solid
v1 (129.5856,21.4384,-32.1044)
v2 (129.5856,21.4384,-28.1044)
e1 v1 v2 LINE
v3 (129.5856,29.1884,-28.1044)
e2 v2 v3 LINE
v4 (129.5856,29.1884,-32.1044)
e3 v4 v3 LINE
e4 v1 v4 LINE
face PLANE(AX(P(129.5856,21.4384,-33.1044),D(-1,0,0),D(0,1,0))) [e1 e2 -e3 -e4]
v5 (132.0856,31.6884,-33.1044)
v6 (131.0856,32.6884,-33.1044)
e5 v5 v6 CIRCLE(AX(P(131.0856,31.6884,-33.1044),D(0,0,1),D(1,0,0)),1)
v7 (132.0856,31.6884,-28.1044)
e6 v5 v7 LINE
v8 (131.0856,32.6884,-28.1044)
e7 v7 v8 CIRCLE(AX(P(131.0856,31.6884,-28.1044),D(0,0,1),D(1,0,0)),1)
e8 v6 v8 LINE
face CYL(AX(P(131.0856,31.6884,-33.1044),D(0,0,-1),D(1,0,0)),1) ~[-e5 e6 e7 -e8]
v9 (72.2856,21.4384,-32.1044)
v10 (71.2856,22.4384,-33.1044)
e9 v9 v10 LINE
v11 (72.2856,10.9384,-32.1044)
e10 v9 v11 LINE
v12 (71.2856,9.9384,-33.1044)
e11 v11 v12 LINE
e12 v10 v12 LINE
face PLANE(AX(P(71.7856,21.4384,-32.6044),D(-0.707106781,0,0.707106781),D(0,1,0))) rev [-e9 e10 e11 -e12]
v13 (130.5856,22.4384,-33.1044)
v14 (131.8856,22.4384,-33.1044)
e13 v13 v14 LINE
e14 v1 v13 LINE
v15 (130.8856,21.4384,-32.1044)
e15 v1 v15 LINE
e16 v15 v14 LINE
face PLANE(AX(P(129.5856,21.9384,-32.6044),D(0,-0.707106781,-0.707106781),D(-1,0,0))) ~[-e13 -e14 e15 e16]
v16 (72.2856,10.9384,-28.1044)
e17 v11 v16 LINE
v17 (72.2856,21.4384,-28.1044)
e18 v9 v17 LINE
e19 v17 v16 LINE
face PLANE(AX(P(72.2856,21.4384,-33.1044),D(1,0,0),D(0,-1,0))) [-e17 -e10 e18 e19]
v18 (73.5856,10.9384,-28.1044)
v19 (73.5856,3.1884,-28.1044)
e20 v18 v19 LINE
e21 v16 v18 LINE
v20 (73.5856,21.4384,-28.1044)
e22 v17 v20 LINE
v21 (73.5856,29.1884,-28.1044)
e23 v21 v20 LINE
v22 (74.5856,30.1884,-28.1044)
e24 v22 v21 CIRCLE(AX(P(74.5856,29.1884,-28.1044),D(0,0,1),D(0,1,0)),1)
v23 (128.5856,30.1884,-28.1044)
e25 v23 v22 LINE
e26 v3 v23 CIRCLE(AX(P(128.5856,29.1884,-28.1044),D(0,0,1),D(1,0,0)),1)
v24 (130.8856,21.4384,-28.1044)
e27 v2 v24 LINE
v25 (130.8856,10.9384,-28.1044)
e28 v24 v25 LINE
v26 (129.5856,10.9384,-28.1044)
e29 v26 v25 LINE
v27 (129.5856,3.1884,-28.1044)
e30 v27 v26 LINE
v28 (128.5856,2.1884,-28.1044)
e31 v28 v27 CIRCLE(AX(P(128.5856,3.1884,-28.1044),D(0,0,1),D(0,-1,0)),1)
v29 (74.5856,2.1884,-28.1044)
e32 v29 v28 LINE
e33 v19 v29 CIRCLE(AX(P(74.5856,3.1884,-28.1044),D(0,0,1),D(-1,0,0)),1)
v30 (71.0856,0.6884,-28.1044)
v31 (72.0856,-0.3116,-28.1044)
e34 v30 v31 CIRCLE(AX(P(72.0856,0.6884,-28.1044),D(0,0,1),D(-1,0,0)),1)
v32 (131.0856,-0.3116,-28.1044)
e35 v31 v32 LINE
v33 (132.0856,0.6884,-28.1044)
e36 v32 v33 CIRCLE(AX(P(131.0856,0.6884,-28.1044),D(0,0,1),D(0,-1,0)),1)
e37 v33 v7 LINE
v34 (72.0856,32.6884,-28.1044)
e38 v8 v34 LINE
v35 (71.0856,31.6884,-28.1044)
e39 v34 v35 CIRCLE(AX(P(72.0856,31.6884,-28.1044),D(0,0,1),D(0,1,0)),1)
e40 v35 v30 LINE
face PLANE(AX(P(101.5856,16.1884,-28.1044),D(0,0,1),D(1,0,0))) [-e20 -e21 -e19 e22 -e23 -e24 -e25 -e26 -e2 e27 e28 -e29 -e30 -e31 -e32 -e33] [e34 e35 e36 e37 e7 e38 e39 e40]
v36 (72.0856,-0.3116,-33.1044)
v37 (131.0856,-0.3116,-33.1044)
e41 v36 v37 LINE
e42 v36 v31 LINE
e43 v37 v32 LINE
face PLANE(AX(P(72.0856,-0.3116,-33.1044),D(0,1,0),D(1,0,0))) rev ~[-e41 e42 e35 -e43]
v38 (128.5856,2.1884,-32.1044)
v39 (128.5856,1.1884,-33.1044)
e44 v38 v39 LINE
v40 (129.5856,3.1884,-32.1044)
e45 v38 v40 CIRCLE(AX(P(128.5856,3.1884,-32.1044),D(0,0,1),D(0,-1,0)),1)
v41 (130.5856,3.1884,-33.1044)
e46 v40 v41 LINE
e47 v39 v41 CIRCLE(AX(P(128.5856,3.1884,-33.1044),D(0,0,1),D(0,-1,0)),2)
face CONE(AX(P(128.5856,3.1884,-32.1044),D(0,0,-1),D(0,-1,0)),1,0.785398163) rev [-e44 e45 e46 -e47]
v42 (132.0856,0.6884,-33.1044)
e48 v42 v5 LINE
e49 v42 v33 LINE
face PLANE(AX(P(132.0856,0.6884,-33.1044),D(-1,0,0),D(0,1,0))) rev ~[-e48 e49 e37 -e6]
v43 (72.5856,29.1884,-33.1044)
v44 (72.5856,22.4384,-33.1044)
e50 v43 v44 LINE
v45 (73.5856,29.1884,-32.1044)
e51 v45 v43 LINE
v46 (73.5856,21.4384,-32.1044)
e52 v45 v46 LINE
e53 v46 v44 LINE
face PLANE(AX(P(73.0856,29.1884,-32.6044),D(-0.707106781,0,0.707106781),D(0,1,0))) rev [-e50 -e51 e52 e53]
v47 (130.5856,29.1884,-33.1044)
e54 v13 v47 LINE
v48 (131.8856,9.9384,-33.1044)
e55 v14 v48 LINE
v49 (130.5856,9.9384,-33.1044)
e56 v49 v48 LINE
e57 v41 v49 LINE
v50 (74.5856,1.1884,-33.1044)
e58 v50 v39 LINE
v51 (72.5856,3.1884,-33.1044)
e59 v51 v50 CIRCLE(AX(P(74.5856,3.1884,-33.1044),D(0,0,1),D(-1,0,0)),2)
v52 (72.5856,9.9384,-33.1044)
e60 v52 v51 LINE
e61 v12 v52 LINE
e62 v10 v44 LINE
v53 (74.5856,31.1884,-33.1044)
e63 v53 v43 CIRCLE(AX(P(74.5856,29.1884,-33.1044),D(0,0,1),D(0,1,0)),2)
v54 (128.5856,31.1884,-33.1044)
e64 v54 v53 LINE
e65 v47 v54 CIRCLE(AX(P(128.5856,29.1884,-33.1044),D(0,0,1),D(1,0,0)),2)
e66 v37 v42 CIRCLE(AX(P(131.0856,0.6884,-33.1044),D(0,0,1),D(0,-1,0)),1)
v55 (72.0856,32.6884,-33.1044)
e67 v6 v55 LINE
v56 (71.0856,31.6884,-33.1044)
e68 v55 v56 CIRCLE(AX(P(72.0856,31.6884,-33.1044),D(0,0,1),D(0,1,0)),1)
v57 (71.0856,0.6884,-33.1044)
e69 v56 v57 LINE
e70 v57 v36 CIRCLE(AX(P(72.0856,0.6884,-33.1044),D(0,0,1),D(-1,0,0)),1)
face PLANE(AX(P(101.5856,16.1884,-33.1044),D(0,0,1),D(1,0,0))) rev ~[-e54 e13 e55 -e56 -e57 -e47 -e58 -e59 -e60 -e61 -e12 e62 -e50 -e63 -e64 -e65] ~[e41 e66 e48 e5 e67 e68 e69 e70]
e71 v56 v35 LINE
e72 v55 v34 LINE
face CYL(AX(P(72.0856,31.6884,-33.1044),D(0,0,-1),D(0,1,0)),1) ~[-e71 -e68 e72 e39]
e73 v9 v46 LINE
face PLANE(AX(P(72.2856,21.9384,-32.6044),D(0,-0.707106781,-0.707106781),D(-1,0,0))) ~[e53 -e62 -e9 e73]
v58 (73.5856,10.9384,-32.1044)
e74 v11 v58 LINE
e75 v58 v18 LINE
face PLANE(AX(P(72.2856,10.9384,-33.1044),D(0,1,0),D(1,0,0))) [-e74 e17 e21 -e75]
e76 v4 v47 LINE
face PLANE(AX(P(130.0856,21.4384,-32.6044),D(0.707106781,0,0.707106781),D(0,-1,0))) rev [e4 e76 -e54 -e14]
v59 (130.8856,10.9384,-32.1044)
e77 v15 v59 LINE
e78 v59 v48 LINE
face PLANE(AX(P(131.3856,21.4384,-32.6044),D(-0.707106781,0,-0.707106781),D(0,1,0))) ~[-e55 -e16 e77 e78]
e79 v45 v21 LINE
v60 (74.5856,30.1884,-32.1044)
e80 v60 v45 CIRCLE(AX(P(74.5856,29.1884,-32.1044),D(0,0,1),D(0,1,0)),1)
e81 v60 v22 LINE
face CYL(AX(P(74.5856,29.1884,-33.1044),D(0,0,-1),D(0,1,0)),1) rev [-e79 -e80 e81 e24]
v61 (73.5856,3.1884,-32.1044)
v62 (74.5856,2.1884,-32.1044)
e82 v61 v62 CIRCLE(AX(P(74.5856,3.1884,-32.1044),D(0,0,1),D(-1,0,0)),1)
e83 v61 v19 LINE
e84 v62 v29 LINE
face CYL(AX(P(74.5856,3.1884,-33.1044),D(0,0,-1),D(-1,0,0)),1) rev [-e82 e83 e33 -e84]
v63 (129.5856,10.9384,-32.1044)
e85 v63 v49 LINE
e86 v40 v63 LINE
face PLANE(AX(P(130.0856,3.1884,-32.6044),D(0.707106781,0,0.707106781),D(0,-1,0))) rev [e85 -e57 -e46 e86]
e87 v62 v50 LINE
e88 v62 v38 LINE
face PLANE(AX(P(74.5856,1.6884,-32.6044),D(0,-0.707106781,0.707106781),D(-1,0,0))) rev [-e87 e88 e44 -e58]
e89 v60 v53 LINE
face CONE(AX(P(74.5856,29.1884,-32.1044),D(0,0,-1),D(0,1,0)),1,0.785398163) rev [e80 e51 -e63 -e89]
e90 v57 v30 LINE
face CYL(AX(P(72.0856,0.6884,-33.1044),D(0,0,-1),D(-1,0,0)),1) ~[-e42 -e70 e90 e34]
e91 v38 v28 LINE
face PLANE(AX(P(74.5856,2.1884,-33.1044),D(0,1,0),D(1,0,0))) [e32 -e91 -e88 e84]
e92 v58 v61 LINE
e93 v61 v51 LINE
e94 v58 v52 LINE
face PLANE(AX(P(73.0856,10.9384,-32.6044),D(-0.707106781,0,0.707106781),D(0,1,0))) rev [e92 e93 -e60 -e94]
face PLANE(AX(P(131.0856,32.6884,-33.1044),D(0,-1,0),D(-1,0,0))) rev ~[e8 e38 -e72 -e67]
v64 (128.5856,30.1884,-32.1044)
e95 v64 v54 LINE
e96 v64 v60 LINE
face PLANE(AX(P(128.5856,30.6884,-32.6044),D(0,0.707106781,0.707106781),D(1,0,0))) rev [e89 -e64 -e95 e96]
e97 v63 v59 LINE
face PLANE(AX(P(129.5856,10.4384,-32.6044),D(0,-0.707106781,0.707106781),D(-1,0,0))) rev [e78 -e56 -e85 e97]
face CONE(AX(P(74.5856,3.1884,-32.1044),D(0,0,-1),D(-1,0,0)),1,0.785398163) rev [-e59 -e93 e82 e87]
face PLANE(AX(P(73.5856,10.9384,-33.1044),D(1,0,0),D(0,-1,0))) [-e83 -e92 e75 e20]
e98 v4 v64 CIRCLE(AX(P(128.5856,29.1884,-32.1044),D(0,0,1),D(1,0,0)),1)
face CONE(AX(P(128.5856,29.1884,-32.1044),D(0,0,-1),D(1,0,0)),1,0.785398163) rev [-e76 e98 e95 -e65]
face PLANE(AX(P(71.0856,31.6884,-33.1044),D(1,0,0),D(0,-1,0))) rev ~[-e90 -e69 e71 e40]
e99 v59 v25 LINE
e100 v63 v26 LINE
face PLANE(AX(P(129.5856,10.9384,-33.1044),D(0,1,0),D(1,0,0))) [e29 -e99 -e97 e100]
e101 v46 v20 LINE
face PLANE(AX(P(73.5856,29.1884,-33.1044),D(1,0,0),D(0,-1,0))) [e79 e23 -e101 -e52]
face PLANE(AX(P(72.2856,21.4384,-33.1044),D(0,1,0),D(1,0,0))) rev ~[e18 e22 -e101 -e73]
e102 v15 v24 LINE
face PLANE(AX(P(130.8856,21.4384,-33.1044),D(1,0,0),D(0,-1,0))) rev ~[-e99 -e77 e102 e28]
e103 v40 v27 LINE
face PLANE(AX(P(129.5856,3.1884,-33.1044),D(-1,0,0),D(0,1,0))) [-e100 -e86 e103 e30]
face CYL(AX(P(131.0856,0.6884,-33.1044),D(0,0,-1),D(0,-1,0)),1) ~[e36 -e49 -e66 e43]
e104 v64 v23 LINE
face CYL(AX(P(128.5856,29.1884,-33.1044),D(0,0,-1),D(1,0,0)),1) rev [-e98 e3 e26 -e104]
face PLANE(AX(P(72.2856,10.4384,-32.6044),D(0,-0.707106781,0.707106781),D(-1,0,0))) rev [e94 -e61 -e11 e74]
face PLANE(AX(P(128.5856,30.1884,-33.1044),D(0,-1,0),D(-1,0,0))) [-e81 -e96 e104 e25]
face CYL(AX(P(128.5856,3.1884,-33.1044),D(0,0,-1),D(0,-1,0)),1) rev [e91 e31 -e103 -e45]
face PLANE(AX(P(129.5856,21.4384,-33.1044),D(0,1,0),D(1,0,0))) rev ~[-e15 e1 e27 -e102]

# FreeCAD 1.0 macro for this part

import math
import FreeCAD as App
import Part
import Sketcher

V = App.Vector


def edges_at(feature, points):
    """Names of the edges that pass closest to the given points."""
    edges = feature.Shape.Edges
    near = lambda p: min(range(len(edges)), key=lambda i: edges[i].distToShape(Part.Vertex(*p))[0])
    return sorted({f"Edge{near(p) + 1}" for p in points})

doc = App.newDocument("Part")
body = doc.addObject("PartDesign::Body", "Body")

# Sketch on XY plane
sketch1 = body.newObject("Sketcher::SketchObject", "Sketch")
sketch1.AttachmentSupport = (doc.getObject("XY_Plane"), [""])
sketch1.MapMode = "FlatFace"
sketch1.AttachmentOffset = App.Placement(V(0, 0, -33.1044), App.Rotation())
sketch1.addGeometry(Part.ArcOfCircle(Part.Circle(V(131.1, 0.7, 0), V(0, 0, 1), 1), math.radians(-90), math.radians(0)), False)
sketch1.addGeometry(Part.LineSegment(V(132.1, 0.7, 0), V(132.1, 31.7, 0)), False)
sketch1.addGeometry(Part.ArcOfCircle(Part.Circle(V(131.1, 31.7, 0), V(0, 0, 1), 1), math.radians(0), math.radians(90)), False)
sketch1.addGeometry(Part.LineSegment(V(131.1, 32.7, 0), V(72.1, 32.7, 0)), False)
sketch1.addGeometry(Part.ArcOfCircle(Part.Circle(V(72.1, 31.7, 0), V(0, 0, 1), 1), math.radians(90), math.radians(180)), False)
sketch1.addGeometry(Part.LineSegment(V(71.1, 31.7, 0), V(71.1, 0.7, 0)), False)
sketch1.addGeometry(Part.ArcOfCircle(Part.Circle(V(72.1, 0.7, 0), V(0, 0, 1), 1), math.radians(180), math.radians(270)), False)
sketch1.addGeometry(Part.LineSegment(V(72.1, -0.3, 0), V(131.1, -0.3, 0)), False)
sketch1.addGeometry(Part.LineSegment(V(73.6, 21.4, 0), V(73.6, 29.2, 0)), False)
sketch1.addGeometry(Part.ArcOfCircle(Part.Circle(V(74.6, 29.2, 0), V(0, 0, 1), 1), math.radians(90), math.radians(180)), False)
sketch1.addGeometry(Part.LineSegment(V(74.6, 30.2, 0), V(128.6, 30.2, 0)), False)
sketch1.addGeometry(Part.ArcOfCircle(Part.Circle(V(128.6, 29.2, 0), V(0, 0, 1), 1), math.radians(0), math.radians(90)), False)
sketch1.addGeometry(Part.LineSegment(V(129.6, 29.2, 0), V(129.6, 21.4, 0)), False)
sketch1.addGeometry(Part.LineSegment(V(129.6, 21.4, 0), V(130.9, 21.4, 0)), False)
sketch1.addGeometry(Part.LineSegment(V(130.9, 21.4, 0), V(130.9, 10.9, 0)), False)
sketch1.addGeometry(Part.LineSegment(V(130.9, 10.9, 0), V(129.6, 10.9, 0)), False)
sketch1.addGeometry(Part.LineSegment(V(129.6, 10.9, 0), V(129.6, 3.2, 0)), False)
sketch1.addGeometry(Part.ArcOfCircle(Part.Circle(V(128.6, 3.2, 0), V(0, 0, 1), 1), math.radians(-90), math.radians(0)), False)
sketch1.addGeometry(Part.LineSegment(V(128.6, 2.2, 0), V(74.6, 2.2, 0)), False)
sketch1.addGeometry(Part.ArcOfCircle(Part.Circle(V(74.6, 3.2, 0), V(0, 0, 1), 1), math.radians(180), math.radians(270)), False)
sketch1.addGeometry(Part.LineSegment(V(73.6, 3.2, 0), V(73.6, 10.9, 0)), False)
sketch1.addGeometry(Part.LineSegment(V(73.6, 10.9, 0), V(72.3, 10.9, 0)), False)
sketch1.addGeometry(Part.LineSegment(V(72.3, 10.9, 0), V(72.3, 21.4, 0)), False)
sketch1.addGeometry(Part.LineSegment(V(72.3, 21.4, 0), V(73.6, 21.4, 0)), False)
sketch1.addConstraint(Sketcher.Constraint("Tangent", 0, 2, 1, 1))
sketch1.addConstraint(Sketcher.Constraint("Tangent", 1, 2, 2, 1))
sketch1.addConstraint(Sketcher.Constraint("Tangent", 2, 2, 3, 1))
sketch1.addConstraint(Sketcher.Constraint("Tangent", 3, 2, 4, 1))
sketch1.addConstraint(Sketcher.Constraint("Tangent", 4, 2, 5, 1))
sketch1.addConstraint(Sketcher.Constraint("Tangent", 5, 2, 6, 1))
sketch1.addConstraint(Sketcher.Constraint("Tangent", 6, 2, 7, 1))
sketch1.addConstraint(Sketcher.Constraint("Tangent", 7, 2, 0, 1))
sketch1.addConstraint(Sketcher.Constraint("Tangent", 8, 2, 9, 2))
sketch1.addConstraint(Sketcher.Constraint("Tangent", 9, 1, 10, 1))
sketch1.addConstraint(Sketcher.Constraint("Tangent", 10, 2, 11, 2))
sketch1.addConstraint(Sketcher.Constraint("Tangent", 11, 1, 12, 1))
sketch1.addConstraint(Sketcher.Constraint("Coincident", 12, 2, 13, 1))
sketch1.addConstraint(Sketcher.Constraint("Coincident", 13, 2, 14, 1))
sketch1.addConstraint(Sketcher.Constraint("Coincident", 14, 2, 15, 1))
sketch1.addConstraint(Sketcher.Constraint("Coincident", 15, 2, 16, 1))
sketch1.addConstraint(Sketcher.Constraint("Tangent", 16, 2, 17, 2))
sketch1.addConstraint(Sketcher.Constraint("Tangent", 17, 1, 18, 1))
sketch1.addConstraint(Sketcher.Constraint("Tangent", 18, 2, 19, 2))
sketch1.addConstraint(Sketcher.Constraint("Tangent", 19, 1, 20, 1))
sketch1.addConstraint(Sketcher.Constraint("Coincident", 20, 2, 21, 1))
sketch1.addConstraint(Sketcher.Constraint("Coincident", 21, 2, 22, 1))
sketch1.addConstraint(Sketcher.Constraint("Coincident", 22, 2, 23, 1))
sketch1.addConstraint(Sketcher.Constraint("Coincident", 23, 2, 8, 1))
sketch1.addConstraint(Sketcher.Constraint("Vertical", 1))
sketch1.addConstraint(Sketcher.Constraint("Horizontal", 3))
sketch1.addConstraint(Sketcher.Constraint("Vertical", 5))
sketch1.addConstraint(Sketcher.Constraint("Horizontal", 7))
sketch1.addConstraint(Sketcher.Constraint("Vertical", 8))
sketch1.addConstraint(Sketcher.Constraint("Horizontal", 10))
sketch1.addConstraint(Sketcher.Constraint("Vertical", 12))
sketch1.addConstraint(Sketcher.Constraint("Horizontal", 13))
sketch1.addConstraint(Sketcher.Constraint("Vertical", 14))
sketch1.addConstraint(Sketcher.Constraint("Horizontal", 15))
sketch1.addConstraint(Sketcher.Constraint("Vertical", 16))
sketch1.addConstraint(Sketcher.Constraint("Horizontal", 18))
sketch1.addConstraint(Sketcher.Constraint("Vertical", 20))
sketch1.addConstraint(Sketcher.Constraint("Horizontal", 21))
sketch1.addConstraint(Sketcher.Constraint("Vertical", 22))
sketch1.addConstraint(Sketcher.Constraint("Horizontal", 23))
sketch1.addConstraint(Sketcher.Constraint("Equal", 0, 2))
sketch1.addConstraint(Sketcher.Constraint("Equal", 2, 4))
sketch1.addConstraint(Sketcher.Constraint("Equal", 4, 6))
sketch1.addConstraint(Sketcher.Constraint("Equal", 6, 9))
sketch1.addConstraint(Sketcher.Constraint("Equal", 9, 11))
sketch1.addConstraint(Sketcher.Constraint("Equal", 11, 17))
sketch1.addConstraint(Sketcher.Constraint("Equal", 17, 19))
sketch1.addConstraint(Sketcher.Constraint("Horizontal", 15, 2, 20, 2))
sketch1.addConstraint(Sketcher.Constraint("Horizontal", 13, 2, 22, 2))
sketch1.addConstraint(Sketcher.Constraint("Vertical", 11, 3, 17, 3))
sketch1.addConstraint(Sketcher.Constraint("Vertical", 9, 3, 19, 3))
sketch1.addConstraint(Sketcher.Constraint("Equal", 15, 21))
sketch1.addConstraint(Sketcher.Constraint("Equal", 12, 16))
sketch1.addConstraint(Sketcher.Constraint("Radius", 0, 1.0))
sketch1.addConstraint(Sketcher.Constraint("DistanceX", 3, 2, 3, 1, 59.0))
sketch1.addConstraint(Sketcher.Constraint("DistanceX", 10, 1, 10, 2, 54.0))
sketch1.addConstraint(Sketcher.Constraint("DistanceY", 1, 1, 1, 2, 31.0))
sketch1.addConstraint(Sketcher.Constraint("DistanceX", 13, 1, 13, 2, 1.3))
sketch1.addConstraint(Sketcher.Constraint("DistanceY", 14, 2, 14, 1, 10.5))
sketch1.addConstraint(Sketcher.Constraint("DistanceY", 17, 3, 11, 3, 26.0))
sketch1.addConstraint(Sketcher.Constraint("DistanceX", 4, 3, 9, 3, 2.5))
sketch1.addConstraint(Sketcher.Constraint("DistanceY", 9, 3, 4, 3, 2.5))
sketch1.addConstraint(Sketcher.Constraint("DistanceX", -1, 1, 0, 3, 131.0856))
sketch1.addConstraint(Sketcher.Constraint("DistanceY", -1, 1, 0, 3, 0.6884))
pad1 = body.newObject("PartDesign::Pad", "Pad")
pad1.Profile = sketch1
pad1.Length = 5
doc.recompute()

chamfer = body.newObject("PartDesign::Chamfer", "Chamfer")
chamfer.Base = (pad1, edges_at(pad1, [
    (101.586, 30.188, -33.104),
    (129.293, 29.895, -33.104),
    (129.586, 25.313, -33.104),
    (73.879, 29.895, -33.104),
    (73.586, 25.313, -33.104),
    (101.586, 2.188, -33.104),
    (73.879, 2.481, -33.104),
    (73.586, 7.063, -33.104),
    (129.293, 2.481, -33.104),
    (129.586, 7.063, -33.104),
    (130.236, 21.438, -33.104),
    (130.236, 10.938, -33.104),
    (130.886, 16.188, -33.104),
    (72.936, 21.438, -33.104),
    (72.286, 16.188, -33.104),
    (72.936, 10.938, -33.104),
]))
chamfer.Size = 1

doc.recompute()
